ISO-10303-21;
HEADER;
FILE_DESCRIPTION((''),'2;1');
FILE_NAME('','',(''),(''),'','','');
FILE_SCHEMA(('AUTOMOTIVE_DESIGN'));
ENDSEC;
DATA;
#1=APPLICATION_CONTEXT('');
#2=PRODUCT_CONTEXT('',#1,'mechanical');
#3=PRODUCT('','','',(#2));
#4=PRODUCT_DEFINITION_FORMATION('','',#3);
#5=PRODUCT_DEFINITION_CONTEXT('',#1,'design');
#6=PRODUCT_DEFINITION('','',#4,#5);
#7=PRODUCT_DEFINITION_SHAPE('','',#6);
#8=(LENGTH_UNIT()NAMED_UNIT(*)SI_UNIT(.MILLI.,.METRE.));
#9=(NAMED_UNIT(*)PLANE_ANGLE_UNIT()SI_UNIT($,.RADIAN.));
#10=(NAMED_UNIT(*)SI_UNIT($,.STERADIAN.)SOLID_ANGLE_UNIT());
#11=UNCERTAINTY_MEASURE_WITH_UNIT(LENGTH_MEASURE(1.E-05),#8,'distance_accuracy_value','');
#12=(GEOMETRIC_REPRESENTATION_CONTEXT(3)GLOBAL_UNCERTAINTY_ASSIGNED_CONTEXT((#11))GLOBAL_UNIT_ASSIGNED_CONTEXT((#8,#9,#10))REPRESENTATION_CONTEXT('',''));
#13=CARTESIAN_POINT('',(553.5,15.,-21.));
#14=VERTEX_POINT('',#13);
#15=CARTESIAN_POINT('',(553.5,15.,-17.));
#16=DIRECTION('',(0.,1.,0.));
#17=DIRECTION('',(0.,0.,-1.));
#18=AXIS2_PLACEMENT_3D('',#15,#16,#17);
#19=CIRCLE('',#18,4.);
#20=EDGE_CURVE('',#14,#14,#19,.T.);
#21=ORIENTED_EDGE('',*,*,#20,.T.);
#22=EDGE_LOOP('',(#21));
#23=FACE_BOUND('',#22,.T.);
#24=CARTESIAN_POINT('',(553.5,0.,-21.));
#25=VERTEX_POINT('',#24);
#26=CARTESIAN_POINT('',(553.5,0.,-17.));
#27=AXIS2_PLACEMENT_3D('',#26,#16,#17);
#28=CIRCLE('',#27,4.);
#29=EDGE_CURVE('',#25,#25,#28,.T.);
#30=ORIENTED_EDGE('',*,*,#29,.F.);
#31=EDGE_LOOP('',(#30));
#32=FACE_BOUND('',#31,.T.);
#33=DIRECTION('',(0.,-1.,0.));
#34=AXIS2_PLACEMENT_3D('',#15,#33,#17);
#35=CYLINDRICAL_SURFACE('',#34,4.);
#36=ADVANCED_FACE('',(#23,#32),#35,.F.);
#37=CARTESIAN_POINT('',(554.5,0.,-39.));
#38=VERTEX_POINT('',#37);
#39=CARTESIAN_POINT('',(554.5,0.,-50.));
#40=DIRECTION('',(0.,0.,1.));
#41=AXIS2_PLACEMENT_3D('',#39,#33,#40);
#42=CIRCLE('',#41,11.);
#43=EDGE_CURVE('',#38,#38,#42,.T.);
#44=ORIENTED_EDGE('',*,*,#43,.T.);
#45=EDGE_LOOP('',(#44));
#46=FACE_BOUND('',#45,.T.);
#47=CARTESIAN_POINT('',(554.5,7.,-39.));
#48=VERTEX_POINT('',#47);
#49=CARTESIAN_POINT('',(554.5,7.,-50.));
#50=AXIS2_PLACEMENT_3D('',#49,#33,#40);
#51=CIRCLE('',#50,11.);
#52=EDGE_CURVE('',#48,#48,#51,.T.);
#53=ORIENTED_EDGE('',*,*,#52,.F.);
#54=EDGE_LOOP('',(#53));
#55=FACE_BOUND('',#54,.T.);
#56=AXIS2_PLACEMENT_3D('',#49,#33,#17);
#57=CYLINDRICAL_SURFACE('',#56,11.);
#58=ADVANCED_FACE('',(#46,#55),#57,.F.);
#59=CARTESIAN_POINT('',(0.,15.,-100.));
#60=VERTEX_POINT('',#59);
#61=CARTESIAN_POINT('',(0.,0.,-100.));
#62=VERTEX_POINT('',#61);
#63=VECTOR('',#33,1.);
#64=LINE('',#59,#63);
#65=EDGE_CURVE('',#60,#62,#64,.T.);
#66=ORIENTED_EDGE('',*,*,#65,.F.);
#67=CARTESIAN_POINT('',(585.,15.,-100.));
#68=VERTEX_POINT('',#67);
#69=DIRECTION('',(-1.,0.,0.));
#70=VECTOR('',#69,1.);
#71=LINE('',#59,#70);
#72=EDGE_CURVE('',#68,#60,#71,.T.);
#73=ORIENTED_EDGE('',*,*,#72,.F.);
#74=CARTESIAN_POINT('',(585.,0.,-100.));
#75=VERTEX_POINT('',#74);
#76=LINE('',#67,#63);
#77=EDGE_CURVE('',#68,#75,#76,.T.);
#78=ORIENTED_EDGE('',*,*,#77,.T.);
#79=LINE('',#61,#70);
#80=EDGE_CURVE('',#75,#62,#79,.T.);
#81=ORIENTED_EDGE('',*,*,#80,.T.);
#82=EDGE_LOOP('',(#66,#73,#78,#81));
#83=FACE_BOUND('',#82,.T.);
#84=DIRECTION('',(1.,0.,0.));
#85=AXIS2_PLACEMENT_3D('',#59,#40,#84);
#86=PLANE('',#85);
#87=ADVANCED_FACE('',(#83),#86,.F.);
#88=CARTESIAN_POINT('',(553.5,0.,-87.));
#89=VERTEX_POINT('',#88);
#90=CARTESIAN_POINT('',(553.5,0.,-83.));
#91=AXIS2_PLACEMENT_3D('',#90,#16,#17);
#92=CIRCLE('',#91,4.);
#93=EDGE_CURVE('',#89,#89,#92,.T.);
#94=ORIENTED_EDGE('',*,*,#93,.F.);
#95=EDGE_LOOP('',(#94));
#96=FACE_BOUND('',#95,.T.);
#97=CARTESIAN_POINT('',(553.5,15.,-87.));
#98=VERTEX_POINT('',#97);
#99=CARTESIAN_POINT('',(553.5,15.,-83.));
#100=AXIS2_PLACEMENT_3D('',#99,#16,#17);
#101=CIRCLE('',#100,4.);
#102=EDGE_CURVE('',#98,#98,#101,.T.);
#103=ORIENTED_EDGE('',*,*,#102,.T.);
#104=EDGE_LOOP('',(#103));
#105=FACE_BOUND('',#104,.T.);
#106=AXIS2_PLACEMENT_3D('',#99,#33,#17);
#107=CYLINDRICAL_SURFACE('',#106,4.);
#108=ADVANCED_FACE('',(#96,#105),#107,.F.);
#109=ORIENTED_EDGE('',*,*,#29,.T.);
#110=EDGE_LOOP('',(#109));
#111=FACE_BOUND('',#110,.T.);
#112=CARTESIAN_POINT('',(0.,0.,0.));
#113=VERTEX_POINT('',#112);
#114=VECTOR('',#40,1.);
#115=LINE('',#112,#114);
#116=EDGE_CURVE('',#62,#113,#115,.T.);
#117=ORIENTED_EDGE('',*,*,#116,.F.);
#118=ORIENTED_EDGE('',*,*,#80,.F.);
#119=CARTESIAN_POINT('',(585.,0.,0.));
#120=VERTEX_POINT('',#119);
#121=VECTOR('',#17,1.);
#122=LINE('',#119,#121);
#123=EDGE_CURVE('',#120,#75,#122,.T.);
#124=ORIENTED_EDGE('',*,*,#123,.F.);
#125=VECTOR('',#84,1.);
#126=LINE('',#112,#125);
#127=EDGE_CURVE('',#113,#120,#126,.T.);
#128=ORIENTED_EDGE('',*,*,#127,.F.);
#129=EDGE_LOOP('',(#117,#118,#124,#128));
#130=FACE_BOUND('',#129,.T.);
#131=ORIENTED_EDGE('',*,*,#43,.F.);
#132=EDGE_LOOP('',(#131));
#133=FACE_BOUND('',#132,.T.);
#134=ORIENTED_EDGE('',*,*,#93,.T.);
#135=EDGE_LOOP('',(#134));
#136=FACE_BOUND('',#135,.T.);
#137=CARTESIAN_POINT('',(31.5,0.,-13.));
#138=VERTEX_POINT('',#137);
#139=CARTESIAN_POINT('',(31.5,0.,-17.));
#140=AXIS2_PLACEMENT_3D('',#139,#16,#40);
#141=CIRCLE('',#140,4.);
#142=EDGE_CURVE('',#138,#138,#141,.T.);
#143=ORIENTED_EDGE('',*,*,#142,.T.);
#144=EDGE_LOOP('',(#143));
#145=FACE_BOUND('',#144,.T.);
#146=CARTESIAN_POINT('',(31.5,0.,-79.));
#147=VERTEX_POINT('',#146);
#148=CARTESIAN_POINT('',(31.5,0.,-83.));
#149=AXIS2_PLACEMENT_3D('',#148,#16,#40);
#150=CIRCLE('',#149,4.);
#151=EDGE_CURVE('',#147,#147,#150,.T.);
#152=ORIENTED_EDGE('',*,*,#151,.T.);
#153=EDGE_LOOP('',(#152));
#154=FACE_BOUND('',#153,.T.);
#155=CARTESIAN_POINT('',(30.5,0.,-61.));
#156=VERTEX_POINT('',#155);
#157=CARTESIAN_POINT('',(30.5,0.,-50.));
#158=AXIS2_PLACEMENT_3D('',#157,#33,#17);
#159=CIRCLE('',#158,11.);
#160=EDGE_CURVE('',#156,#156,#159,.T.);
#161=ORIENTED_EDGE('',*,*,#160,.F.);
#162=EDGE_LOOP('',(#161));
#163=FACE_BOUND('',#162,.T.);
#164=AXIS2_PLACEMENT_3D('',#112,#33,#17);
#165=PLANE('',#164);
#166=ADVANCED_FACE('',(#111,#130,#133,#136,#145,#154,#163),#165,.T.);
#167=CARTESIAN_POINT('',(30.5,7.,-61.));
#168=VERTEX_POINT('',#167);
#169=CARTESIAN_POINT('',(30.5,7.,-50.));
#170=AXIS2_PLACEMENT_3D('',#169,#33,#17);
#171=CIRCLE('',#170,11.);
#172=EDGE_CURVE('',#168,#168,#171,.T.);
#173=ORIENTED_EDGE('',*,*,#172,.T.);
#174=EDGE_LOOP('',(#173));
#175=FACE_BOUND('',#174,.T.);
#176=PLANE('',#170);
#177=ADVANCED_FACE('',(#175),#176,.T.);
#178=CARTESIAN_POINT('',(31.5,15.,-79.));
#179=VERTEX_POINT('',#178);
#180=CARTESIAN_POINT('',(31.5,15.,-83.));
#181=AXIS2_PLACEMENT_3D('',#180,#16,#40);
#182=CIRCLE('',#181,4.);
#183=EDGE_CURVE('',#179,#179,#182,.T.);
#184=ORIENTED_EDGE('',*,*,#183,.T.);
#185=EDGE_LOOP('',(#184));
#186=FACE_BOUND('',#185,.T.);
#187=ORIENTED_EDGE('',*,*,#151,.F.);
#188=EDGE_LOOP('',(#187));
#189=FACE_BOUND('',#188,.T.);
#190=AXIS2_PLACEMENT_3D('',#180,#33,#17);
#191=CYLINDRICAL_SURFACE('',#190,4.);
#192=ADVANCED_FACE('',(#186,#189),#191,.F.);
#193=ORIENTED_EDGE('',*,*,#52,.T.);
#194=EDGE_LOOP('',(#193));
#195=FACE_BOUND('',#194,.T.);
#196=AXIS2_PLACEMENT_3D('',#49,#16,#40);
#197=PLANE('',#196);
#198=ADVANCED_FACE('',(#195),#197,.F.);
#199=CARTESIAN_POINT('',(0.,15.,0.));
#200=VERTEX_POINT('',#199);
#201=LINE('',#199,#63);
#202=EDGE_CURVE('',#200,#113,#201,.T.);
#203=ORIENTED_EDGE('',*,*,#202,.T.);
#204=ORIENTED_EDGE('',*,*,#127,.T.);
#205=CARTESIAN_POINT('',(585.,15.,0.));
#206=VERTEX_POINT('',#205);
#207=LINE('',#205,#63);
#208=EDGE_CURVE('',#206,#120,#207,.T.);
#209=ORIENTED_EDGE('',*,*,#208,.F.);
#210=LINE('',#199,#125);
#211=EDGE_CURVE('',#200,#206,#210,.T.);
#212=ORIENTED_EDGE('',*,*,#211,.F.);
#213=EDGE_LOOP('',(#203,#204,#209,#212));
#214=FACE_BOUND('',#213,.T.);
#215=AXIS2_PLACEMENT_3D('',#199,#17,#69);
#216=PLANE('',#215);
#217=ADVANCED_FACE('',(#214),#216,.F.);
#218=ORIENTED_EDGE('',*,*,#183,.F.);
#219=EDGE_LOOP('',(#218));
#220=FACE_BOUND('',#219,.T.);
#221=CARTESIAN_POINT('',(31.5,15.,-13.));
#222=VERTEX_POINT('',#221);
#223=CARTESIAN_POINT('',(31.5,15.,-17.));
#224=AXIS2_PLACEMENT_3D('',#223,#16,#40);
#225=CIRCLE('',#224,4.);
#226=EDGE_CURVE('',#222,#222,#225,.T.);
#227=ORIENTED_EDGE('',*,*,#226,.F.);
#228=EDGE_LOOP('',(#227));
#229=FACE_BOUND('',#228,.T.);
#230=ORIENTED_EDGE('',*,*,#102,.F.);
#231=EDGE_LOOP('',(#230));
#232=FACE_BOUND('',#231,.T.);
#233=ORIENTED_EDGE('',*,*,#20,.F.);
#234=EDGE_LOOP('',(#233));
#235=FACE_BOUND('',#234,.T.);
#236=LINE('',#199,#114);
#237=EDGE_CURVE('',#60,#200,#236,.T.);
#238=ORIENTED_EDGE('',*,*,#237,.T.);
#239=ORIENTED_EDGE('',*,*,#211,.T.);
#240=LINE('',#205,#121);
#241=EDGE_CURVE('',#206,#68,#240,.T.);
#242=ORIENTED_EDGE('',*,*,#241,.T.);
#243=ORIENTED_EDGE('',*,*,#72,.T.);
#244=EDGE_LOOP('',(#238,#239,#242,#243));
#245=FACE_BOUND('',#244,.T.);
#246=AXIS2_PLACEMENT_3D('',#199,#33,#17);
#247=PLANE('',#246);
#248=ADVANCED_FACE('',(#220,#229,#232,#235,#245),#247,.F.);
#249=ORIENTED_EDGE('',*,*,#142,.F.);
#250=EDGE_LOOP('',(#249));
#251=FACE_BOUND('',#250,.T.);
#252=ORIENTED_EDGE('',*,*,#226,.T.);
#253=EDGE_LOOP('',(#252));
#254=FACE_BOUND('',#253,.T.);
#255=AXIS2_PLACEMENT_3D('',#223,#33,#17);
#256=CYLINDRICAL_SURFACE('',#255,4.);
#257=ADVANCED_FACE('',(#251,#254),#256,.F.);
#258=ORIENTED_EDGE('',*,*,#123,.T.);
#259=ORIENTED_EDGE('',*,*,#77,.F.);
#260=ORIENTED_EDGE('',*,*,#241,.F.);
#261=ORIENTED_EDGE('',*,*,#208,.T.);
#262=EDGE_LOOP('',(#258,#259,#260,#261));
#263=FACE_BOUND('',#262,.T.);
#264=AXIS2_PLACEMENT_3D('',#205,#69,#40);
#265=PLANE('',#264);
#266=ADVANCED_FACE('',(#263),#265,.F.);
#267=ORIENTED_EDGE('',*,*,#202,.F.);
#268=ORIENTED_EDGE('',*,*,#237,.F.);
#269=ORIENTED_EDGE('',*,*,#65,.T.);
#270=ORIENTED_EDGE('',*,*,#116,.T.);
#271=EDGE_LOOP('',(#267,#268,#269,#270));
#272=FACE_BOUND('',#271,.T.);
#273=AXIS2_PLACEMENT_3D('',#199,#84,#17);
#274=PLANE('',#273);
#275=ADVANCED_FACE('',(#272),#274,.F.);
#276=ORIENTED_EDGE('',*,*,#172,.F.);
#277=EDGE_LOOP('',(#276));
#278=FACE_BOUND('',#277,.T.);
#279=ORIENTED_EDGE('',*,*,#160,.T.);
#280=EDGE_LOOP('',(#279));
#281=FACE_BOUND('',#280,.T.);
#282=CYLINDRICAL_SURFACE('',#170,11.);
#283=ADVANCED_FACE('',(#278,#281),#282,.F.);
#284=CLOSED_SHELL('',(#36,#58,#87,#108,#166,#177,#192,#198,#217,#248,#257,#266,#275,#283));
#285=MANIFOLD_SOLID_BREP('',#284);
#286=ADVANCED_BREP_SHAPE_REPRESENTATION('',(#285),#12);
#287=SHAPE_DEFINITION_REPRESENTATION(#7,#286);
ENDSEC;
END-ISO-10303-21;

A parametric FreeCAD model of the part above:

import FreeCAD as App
import Part
import Sketcher
from FreeCAD import Vector

doc = App.newDocument("Part")
body = doc.addObject("PartDesign::Body", "Body")

# Sketch on XZ plane
sketch1 = doc.addObject("Sketcher::SketchObject", "Sketch")
body.addObject(sketch1)
sketch1.AttachmentSupport = (doc.XZ_Plane, [""])
sketch1.MapMode = "FlatFace"
sketch1.addGeometry(Part.LineSegment(Vector(0, -100, 0), Vector(0, 0, 0)), False)
sketch1.addGeometry(Part.LineSegment(Vector(0, 0, 0), Vector(585, 0, 0)), False)
sketch1.addGeometry(Part.LineSegment(Vector(585, 0, 0), Vector(585, -100, 0)), False)
sketch1.addGeometry(Part.LineSegment(Vector(585, -100, 0), Vector(0, -100, 0)), False)
sketch1.addGeometry(Part.Circle(Vector(31.5, -17, 0), Vector(0, 0, 1), 4), False)
sketch1.addGeometry(Part.Circle(Vector(553.5, -17, 0), Vector(0, 0, 1), 4), False)
sketch1.addGeometry(Part.Circle(Vector(31.5, -83, 0), Vector(0, 0, 1), 4), False)
sketch1.addGeometry(Part.Circle(Vector(553.5, -83, 0), Vector(0, 0, 1), 4), False)
sketch1.addConstraint(Sketcher.Constraint("Coincident", 0, 2, 1, 1))
sketch1.addConstraint(Sketcher.Constraint("Coincident", 1, 2, 2, 1))
sketch1.addConstraint(Sketcher.Constraint("Coincident", 2, 2, 3, 1))
sketch1.addConstraint(Sketcher.Constraint("Coincident", 3, 2, 0, 1))
sketch1.addConstraint(Sketcher.Constraint("Vertical", 0))
sketch1.addConstraint(Sketcher.Constraint("Horizontal", 1))
sketch1.addConstraint(Sketcher.Constraint("Vertical", 2))
sketch1.addConstraint(Sketcher.Constraint("Horizontal", 3))
sketch1.addConstraint(Sketcher.Constraint("Coincident", 0, 2, -1, 1))
sketch1.addConstraint(Sketcher.Constraint("Equal", 4, 5))
sketch1.addConstraint(Sketcher.Constraint("Equal", 5, 6))
sketch1.addConstraint(Sketcher.Constraint("Equal", 6, 7))
sketch1.addConstraint(Sketcher.Constraint("Horizontal", 4, 3, 5, 3))
sketch1.addConstraint(Sketcher.Constraint("Horizontal", 6, 3, 7, 3))
sketch1.addConstraint(Sketcher.Constraint("Vertical", 4, 3, 6, 3))
sketch1.addConstraint(Sketcher.Constraint("Vertical", 5, 3, 7, 3))
sketch1.addConstraint(Sketcher.Constraint("Diameter", 4, 8.0))
sketch1.addConstraint(Sketcher.Constraint("DistanceX", 1, 1, 1, 2, 585.0))
sketch1.addConstraint(Sketcher.Constraint("DistanceY", 0, 1, 0, 2, 100.0))
sketch1.addConstraint(Sketcher.Constraint("DistanceY", 4, 3, -1, 1, 17.0))
sketch1.addConstraint(Sketcher.Constraint("DistanceY", 6, 3, -1, 1, 83.0))
sketch1.addConstraint(Sketcher.Constraint("DistanceX", 4, 3, 5, 3, 522.0))
sketch1.addConstraint(Sketcher.Constraint("DistanceX", -1, 1, 4, 3, 31.5))
pad1 = doc.addObject("PartDesign::Pad", "Pad")
body.addObject(pad1)
pad1.Profile = sketch1
pad1.Length = 15
pad1.Reversed = True

# Sketch on XZ plane
sketch2 = doc.addObject("Sketcher::SketchObject", "Sketch001")
body.addObject(sketch2)
sketch2.AttachmentSupport = (doc.XZ_Plane, [""])
sketch2.MapMode = "FlatFace"
sketch2.addGeometry(Part.Circle(Vector(30, -50, 0), Vector(0, 0, 1), 11), False)
sketch2.addGeometry(Part.Circle(Vector(554, -50, 0), Vector(0, 0, 1), 11), False)
sketch2.addConstraint(Sketcher.Constraint("Equal", 0, 1))
sketch2.addConstraint(Sketcher.Constraint("Horizontal", 0, 3, 1, 3))
sketch2.addConstraint(Sketcher.Constraint("Diameter", 0, 22.0))
sketch2.addConstraint(Sketcher.Constraint("DistanceY", 0, 3, -1, 1, 50.0))
sketch2.addConstraint(Sketcher.Constraint("DistanceX", 0, 3, 1, 3, 524.0))
sketch2.addConstraint(Sketcher.Constraint("DistanceX", -1, 1, 0, 3, 30.5))
pocket1 = doc.addObject("PartDesign::Pocket", "Pocket")
body.addObject(pocket1)
pocket1.Profile = sketch2
pocket1.Length = 7

doc.recompute()
